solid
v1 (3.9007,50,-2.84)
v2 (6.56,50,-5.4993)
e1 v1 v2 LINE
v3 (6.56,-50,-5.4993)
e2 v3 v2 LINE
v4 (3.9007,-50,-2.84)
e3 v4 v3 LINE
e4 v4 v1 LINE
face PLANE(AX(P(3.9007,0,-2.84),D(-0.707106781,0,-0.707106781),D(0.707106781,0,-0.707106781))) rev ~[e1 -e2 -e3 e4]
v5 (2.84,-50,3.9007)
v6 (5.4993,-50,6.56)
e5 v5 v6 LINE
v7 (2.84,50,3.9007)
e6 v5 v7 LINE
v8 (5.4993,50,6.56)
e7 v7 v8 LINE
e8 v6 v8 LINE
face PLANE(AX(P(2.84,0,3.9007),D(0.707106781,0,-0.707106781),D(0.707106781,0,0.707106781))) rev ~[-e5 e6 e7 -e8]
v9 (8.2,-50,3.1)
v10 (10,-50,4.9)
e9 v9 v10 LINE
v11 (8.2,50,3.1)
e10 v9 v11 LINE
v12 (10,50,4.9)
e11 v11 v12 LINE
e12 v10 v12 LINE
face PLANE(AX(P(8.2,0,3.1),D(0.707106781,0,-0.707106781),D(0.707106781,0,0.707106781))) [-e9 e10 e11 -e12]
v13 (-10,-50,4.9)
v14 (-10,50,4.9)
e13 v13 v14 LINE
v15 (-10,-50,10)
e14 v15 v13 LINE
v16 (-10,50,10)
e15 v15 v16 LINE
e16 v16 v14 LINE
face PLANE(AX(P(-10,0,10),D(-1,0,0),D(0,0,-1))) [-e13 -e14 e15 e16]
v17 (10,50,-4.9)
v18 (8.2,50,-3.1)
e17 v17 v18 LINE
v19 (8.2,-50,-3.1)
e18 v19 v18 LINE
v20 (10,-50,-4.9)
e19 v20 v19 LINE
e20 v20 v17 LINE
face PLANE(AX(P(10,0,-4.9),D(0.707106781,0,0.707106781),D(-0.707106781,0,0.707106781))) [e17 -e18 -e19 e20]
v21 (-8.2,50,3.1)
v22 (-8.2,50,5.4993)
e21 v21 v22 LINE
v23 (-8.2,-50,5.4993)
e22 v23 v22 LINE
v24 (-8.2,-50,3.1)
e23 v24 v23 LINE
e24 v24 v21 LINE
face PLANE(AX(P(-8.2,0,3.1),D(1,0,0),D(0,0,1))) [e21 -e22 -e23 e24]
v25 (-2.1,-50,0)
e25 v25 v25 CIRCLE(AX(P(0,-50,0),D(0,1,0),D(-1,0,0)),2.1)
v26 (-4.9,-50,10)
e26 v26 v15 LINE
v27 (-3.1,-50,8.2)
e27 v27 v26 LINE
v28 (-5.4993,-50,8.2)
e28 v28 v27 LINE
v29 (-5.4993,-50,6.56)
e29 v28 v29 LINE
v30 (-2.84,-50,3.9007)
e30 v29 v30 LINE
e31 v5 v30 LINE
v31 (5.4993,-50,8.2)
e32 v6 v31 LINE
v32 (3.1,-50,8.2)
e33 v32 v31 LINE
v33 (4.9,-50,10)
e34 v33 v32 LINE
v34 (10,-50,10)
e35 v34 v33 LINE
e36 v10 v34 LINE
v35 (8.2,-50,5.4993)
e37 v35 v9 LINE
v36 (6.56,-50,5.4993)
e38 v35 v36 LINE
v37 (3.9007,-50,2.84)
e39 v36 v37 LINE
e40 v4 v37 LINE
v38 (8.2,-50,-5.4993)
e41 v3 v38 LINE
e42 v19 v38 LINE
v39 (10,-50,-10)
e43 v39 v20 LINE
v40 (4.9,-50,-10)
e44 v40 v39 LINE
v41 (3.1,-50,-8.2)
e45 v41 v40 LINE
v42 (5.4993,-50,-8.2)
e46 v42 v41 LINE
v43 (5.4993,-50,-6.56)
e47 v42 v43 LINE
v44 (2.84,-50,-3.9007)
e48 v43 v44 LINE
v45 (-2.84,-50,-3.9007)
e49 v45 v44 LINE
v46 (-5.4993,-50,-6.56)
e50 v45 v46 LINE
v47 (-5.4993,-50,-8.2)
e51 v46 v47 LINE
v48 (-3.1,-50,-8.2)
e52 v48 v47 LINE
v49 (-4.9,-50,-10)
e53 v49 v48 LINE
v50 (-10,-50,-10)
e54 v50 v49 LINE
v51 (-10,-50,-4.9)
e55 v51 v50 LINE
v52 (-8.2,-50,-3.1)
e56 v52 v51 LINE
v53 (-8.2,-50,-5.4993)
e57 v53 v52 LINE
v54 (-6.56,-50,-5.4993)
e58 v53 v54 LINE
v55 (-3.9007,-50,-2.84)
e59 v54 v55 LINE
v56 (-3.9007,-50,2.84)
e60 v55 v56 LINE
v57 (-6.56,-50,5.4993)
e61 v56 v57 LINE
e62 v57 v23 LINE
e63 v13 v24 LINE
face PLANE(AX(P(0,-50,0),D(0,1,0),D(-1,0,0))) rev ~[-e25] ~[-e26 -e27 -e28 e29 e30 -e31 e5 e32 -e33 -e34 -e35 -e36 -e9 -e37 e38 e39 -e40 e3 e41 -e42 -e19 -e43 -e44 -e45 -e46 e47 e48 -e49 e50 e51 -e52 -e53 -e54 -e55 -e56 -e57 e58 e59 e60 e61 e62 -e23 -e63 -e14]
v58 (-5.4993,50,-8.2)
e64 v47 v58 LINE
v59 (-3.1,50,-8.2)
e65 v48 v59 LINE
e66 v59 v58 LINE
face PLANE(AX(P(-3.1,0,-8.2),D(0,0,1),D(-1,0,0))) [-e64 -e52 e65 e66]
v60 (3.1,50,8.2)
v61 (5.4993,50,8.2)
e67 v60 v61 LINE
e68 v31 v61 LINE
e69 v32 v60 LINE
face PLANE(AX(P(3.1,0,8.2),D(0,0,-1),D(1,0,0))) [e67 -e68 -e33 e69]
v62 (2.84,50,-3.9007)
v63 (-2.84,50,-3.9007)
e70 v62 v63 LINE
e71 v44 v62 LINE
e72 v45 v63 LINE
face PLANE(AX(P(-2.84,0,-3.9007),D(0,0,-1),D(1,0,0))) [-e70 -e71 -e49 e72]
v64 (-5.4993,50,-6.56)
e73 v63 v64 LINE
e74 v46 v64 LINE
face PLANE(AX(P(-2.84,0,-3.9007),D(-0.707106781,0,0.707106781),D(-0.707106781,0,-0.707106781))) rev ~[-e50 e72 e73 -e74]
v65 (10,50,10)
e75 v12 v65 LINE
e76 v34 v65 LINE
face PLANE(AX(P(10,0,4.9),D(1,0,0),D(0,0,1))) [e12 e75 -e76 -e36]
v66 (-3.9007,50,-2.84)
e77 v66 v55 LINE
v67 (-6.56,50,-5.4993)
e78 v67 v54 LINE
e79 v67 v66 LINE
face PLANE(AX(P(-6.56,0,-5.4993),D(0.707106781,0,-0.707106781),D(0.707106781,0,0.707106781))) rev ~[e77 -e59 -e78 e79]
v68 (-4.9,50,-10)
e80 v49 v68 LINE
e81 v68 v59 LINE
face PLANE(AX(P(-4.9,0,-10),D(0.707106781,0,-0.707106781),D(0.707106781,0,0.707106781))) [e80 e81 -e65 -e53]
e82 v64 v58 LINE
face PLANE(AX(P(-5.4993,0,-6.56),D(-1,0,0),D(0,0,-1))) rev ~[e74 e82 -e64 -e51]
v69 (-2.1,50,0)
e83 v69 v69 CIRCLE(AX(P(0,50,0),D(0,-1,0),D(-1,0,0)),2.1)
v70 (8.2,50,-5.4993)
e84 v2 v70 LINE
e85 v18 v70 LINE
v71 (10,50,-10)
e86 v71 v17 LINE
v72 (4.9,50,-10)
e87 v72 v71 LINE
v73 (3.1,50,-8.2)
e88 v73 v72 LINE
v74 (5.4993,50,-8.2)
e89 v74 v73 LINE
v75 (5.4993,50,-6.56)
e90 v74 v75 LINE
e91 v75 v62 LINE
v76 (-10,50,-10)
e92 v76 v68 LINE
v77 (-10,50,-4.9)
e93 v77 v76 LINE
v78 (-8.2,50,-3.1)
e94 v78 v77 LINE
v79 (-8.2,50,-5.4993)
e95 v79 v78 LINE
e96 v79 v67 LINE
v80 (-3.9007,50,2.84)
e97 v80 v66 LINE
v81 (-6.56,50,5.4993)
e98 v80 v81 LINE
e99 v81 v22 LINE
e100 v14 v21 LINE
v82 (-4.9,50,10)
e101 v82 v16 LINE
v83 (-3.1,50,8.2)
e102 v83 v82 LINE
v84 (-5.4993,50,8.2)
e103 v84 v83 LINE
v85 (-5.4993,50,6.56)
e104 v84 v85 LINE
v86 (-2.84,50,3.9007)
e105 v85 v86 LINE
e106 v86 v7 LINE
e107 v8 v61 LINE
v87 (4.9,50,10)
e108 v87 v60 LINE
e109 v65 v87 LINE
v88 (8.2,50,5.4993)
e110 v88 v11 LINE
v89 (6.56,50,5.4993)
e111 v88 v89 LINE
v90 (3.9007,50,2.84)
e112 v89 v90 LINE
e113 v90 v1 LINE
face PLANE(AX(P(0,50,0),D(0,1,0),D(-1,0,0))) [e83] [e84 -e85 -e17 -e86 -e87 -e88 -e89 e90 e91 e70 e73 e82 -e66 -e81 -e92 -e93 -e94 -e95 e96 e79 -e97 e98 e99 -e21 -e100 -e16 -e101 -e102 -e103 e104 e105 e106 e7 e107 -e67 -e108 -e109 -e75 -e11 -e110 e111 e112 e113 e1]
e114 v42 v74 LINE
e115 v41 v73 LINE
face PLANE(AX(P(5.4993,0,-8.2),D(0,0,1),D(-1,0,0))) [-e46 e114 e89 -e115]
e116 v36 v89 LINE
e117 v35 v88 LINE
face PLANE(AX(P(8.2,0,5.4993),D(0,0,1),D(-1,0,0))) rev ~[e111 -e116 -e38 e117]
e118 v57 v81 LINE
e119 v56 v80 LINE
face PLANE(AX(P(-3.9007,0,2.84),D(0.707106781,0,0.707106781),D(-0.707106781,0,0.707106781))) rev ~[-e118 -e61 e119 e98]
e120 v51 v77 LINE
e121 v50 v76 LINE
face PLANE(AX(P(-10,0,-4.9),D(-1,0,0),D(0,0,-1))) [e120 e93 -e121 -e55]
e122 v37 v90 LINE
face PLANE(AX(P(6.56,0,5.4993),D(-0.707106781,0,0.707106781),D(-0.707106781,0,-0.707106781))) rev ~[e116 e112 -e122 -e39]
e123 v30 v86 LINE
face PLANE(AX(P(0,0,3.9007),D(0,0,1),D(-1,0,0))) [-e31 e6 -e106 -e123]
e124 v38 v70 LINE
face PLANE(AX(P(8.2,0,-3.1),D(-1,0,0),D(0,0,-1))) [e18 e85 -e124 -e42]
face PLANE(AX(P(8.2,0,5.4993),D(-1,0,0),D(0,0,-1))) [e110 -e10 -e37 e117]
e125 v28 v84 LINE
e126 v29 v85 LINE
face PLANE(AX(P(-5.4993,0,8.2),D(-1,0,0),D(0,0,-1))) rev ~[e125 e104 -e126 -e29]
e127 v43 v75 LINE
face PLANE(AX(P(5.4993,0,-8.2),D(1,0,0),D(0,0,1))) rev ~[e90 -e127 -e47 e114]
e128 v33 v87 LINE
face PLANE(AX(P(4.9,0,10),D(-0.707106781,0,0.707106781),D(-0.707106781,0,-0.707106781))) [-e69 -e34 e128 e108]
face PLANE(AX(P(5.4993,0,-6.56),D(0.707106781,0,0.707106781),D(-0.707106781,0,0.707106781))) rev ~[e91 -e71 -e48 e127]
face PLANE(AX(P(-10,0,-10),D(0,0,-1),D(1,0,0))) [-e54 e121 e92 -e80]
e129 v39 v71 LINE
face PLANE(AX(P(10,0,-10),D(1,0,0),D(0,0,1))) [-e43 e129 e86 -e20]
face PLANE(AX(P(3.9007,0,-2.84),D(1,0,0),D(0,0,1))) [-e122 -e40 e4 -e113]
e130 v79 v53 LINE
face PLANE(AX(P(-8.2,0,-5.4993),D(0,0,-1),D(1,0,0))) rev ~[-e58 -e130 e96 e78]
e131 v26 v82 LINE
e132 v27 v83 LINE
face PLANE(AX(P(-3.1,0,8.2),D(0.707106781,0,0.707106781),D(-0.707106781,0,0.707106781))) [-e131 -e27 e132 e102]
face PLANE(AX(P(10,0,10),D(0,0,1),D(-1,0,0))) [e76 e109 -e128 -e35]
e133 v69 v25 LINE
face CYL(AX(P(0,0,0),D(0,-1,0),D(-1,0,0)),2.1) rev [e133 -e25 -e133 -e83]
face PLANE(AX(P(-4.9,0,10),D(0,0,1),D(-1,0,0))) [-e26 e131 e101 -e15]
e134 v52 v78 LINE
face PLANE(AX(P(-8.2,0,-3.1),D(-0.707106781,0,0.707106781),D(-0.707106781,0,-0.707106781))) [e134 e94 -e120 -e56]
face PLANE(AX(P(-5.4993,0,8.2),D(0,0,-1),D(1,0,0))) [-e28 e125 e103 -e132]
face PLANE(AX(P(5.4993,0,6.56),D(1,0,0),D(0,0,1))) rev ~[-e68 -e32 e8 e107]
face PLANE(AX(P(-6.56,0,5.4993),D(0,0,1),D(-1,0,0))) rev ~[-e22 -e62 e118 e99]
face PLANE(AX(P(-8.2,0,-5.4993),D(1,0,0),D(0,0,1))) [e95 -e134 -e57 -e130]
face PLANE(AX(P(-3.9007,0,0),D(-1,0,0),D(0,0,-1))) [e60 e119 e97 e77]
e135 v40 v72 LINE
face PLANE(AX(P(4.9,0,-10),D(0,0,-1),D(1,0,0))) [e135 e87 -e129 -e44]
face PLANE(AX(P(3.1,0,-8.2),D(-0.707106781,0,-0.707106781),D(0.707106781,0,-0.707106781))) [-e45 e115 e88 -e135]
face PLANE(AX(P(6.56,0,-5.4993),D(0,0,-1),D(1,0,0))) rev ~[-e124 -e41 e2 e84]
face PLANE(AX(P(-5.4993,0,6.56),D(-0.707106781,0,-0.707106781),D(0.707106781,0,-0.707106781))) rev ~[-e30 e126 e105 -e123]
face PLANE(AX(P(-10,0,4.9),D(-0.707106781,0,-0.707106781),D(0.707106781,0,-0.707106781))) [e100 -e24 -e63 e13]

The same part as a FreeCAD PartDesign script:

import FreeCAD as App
import Part
import Sketcher

doc = App.newDocument("Part")
body = doc.addObject("PartDesign::Body", "Body")

# Sketch on XZ plane
sketch1 = body.newObject("Sketcher::SketchObject", "Sketch")
sketch1.AttachmentSupport = (doc.getObject("XZ_Plane"), [""])
sketch1.MapMode = "FlatFace"
sketch1.addGeometry([
    Part.LineSegment(App.Vector(-3.9, -2.8, 0), App.Vector(-3.9, 2.8, 0)),  # 0
    Part.LineSegment(App.Vector(-3.9, 2.8, 0), App.Vector(-6.6, 5.5, 0)),  # 1
    Part.LineSegment(App.Vector(-6.6, 5.5, 0), App.Vector(-8.2, 5.5, 0)),  # 2
    Part.LineSegment(App.Vector(-8.2, 5.5, 0), App.Vector(-8.2, 3.1, 0)),  # 3
    Part.LineSegment(App.Vector(-8.2, 3.1, 0), App.Vector(-10, 4.9, 0)),  # 4
    Part.LineSegment(App.Vector(-10, 4.9, 0), App.Vector(-10, 10, 0)),  # 5
    Part.LineSegment(App.Vector(-10, 10, 0), App.Vector(-4.9, 10, 0)),  # 6
    Part.LineSegment(App.Vector(-4.9, 10, 0), App.Vector(-3.1, 8.2, 0)),  # 7
    Part.LineSegment(App.Vector(-3.1, 8.2, 0), App.Vector(-5.5, 8.2, 0)),  # 8
    Part.LineSegment(App.Vector(-5.5, 8.2, 0), App.Vector(-5.5, 6.6, 0)),  # 9
    Part.LineSegment(App.Vector(-5.5, 6.6, 0), App.Vector(-2.8, 3.9, 0)),  # 10
    Part.LineSegment(App.Vector(-2.8, 3.9, 0), App.Vector(2.8, 3.9, 0)),  # 11
    Part.LineSegment(App.Vector(2.8, 3.9, 0), App.Vector(5.5, 6.6, 0)),  # 12
    Part.LineSegment(App.Vector(5.5, 6.6, 0), App.Vector(5.5, 8.2, 0)),  # 13
    Part.LineSegment(App.Vector(5.5, 8.2, 0), App.Vector(3.1, 8.2, 0)),  # 14
    Part.LineSegment(App.Vector(3.1, 8.2, 0), App.Vector(4.9, 10, 0)),  # 15
    Part.LineSegment(App.Vector(4.9, 10, 0), App.Vector(10, 10, 0)),  # 16
    Part.LineSegment(App.Vector(10, 10, 0), App.Vector(10, 4.9, 0)),  # 17
    Part.LineSegment(App.Vector(10, 4.9, 0), App.Vector(8.2, 3.1, 0)),  # 18
    Part.LineSegment(App.Vector(8.2, 3.1, 0), App.Vector(8.2, 5.5, 0)),  # 19
    Part.LineSegment(App.Vector(8.2, 5.5, 0), App.Vector(6.6, 5.5, 0)),  # 20
    Part.LineSegment(App.Vector(6.6, 5.5, 0), App.Vector(3.9, 2.8, 0)),  # 21
    Part.LineSegment(App.Vector(3.9, 2.8, 0), App.Vector(3.9, -2.8, 0)),  # 22
    Part.LineSegment(App.Vector(3.9, -2.8, 0), App.Vector(6.6, -5.5, 0)),  # 23
    Part.LineSegment(App.Vector(6.6, -5.5, 0), App.Vector(8.2, -5.5, 0)),  # 24
    Part.LineSegment(App.Vector(8.2, -5.5, 0), App.Vector(8.2, -3.1, 0)),  # 25
    Part.LineSegment(App.Vector(8.2, -3.1, 0), App.Vector(10, -4.9, 0)),  # 26
    Part.LineSegment(App.Vector(10, -4.9, 0), App.Vector(10, -10, 0)),  # 27
    Part.LineSegment(App.Vector(10, -10, 0), App.Vector(4.9, -10, 0)),  # 28
    Part.LineSegment(App.Vector(4.9, -10, 0), App.Vector(3.1, -8.2, 0)),  # 29
    Part.LineSegment(App.Vector(3.1, -8.2, 0), App.Vector(5.5, -8.2, 0)),  # 30
    Part.LineSegment(App.Vector(5.5, -8.2, 0), App.Vector(5.5, -6.6, 0)),  # 31
    Part.LineSegment(App.Vector(5.5, -6.6, 0), App.Vector(2.8, -3.9, 0)),  # 32
    Part.LineSegment(App.Vector(2.8, -3.9, 0), App.Vector(-2.8, -3.9, 0)),  # 33
    Part.LineSegment(App.Vector(-2.8, -3.9, 0), App.Vector(-5.5, -6.6, 0)),  # 34
    Part.LineSegment(App.Vector(-5.5, -6.6, 0), App.Vector(-5.5, -8.2, 0)),  # 35
    Part.LineSegment(App.Vector(-5.5, -8.2, 0), App.Vector(-3.1, -8.2, 0)),  # 36
    Part.LineSegment(App.Vector(-3.1, -8.2, 0), App.Vector(-4.9, -10, 0)),  # 37
    Part.LineSegment(App.Vector(-4.9, -10, 0), App.Vector(-10, -10, 0)),  # 38
    Part.LineSegment(App.Vector(-10, -10, 0), App.Vector(-10, -4.9, 0)),  # 39
    Part.LineSegment(App.Vector(-10, -4.9, 0), App.Vector(-8.2, -3.1, 0)),  # 40
    Part.LineSegment(App.Vector(-8.2, -3.1, 0), App.Vector(-8.2, -5.5, 0)),  # 41
    Part.LineSegment(App.Vector(-8.2, -5.5, 0), App.Vector(-6.6, -5.5, 0)),  # 42
    Part.LineSegment(App.Vector(-6.6, -5.5, 0), App.Vector(-3.9, -2.8, 0)),  # 43
    Part.Circle(App.Vector(0, 0, 0), App.Vector(0, 0, 1), 2.1),  # 44
], False)
sketch1.addConstraint([
    Sketcher.Constraint("Coincident", 0, 2, 1, 1),
    Sketcher.Constraint("Coincident", 1, 2, 2, 1),
    Sketcher.Constraint("Coincident", 2, 2, 3, 1),
    Sketcher.Constraint("Coincident", 3, 2, 4, 1),
    Sketcher.Constraint("Coincident", 4, 2, 5, 1),
    Sketcher.Constraint("Coincident", 5, 2, 6, 1),
    Sketcher.Constraint("Coincident", 6, 2, 7, 1),
    Sketcher.Constraint("Coincident", 7, 2, 8, 1),
    Sketcher.Constraint("Coincident", 8, 2, 9, 1),
    Sketcher.Constraint("Coincident", 9, 2, 10, 1),
    Sketcher.Constraint("Coincident", 10, 2, 11, 1),
    Sketcher.Constraint("Coincident", 11, 2, 12, 1),
    Sketcher.Constraint("Coincident", 12, 2, 13, 1),
    Sketcher.Constraint("Coincident", 13, 2, 14, 1),
    Sketcher.Constraint("Coincident", 14, 2, 15, 1),
    Sketcher.Constraint("Coincident", 15, 2, 16, 1),
    Sketcher.Constraint("Coincident", 16, 2, 17, 1),
    Sketcher.Constraint("Coincident", 17, 2, 18, 1),
    Sketcher.Constraint("Coincident", 18, 2, 19, 1),
    Sketcher.Constraint("Coincident", 19, 2, 20, 1),
    Sketcher.Constraint("Coincident", 20, 2, 21, 1),
    Sketcher.Constraint("Coincident", 21, 2, 22, 1),
    Sketcher.Constraint("Coincident", 22, 2, 23, 1),
    Sketcher.Constraint("Coincident", 23, 2, 24, 1),
    Sketcher.Constraint("Coincident", 24, 2, 25, 1),
    Sketcher.Constraint("Coincident", 25, 2, 26, 1),
    Sketcher.Constraint("Coincident", 26, 2, 27, 1),
    Sketcher.Constraint("Coincident", 27, 2, 28, 1),
    Sketcher.Constraint("Coincident", 28, 2, 29, 1),
    Sketcher.Constraint("Coincident", 29, 2, 30, 1),
    Sketcher.Constraint("Coincident", 30, 2, 31, 1),
    Sketcher.Constraint("Coincident", 31, 2, 32, 1),
    Sketcher.Constraint("Coincident", 32, 2, 33, 1),
    Sketcher.Constraint("Coincident", 33, 2, 34, 1),
    Sketcher.Constraint("Coincident", 34, 2, 35, 1),
    Sketcher.Constraint("Coincident", 35, 2, 36, 1),
    Sketcher.Constraint("Coincident", 36, 2, 37, 1),
    Sketcher.Constraint("Coincident", 37, 2, 38, 1),
    Sketcher.Constraint("Coincident", 38, 2, 39, 1),
    Sketcher.Constraint("Coincident", 39, 2, 40, 1),
    Sketcher.Constraint("Coincident", 40, 2, 41, 1),
    Sketcher.Constraint("Coincident", 41, 2, 42, 1),
    Sketcher.Constraint("Coincident", 42, 2, 43, 1),
    Sketcher.Constraint("Coincident", 43, 2, 0, 1),
    Sketcher.Constraint("Vertical", 0),
    Sketcher.Constraint("Horizontal", 2),
    Sketcher.Constraint("Vertical", 3),
    Sketcher.Constraint("Vertical", 5),
    Sketcher.Constraint("Horizontal", 6),
    Sketcher.Constraint("Horizontal", 8),
    Sketcher.Constraint("Vertical", 9),
    Sketcher.Constraint("Horizontal", 11),
    Sketcher.Constraint("Vertical", 13),
    Sketcher.Constraint("Horizontal", 14),
    Sketcher.Constraint("Horizontal", 16),
    Sketcher.Constraint("Vertical", 17),
    Sketcher.Constraint("Vertical", 19),
    Sketcher.Constraint("Horizontal", 20),
    Sketcher.Constraint("Vertical", 22),
    Sketcher.Constraint("Horizontal", 24),
    Sketcher.Constraint("Vertical", 25),
    Sketcher.Constraint("Vertical", 27),
    Sketcher.Constraint("Horizontal", 28),
    Sketcher.Constraint("Horizontal", 30),
    Sketcher.Constraint("Vertical", 31),
    Sketcher.Constraint("Horizontal", 33),
    Sketcher.Constraint("Vertical", 35),
    Sketcher.Constraint("Horizontal", 36),
    Sketcher.Constraint("Horizontal", 38),
    Sketcher.Constraint("Vertical", 39),
    Sketcher.Constraint("Vertical", 41),
    Sketcher.Constraint("Horizontal", 42),
    Sketcher.Constraint("Coincident", 44, 3, -1, 1),
    Sketcher.Constraint("Symmetric", 0, 2, 22, 2, -1, 1),
    Sketcher.Constraint("Symmetric", 1, 2, 23, 2, -1, 1),
    Sketcher.Constraint("Symmetric", 3, 2, 25, 2, -1, 1),
    Sketcher.Constraint("Symmetric", 4, 2, 26, 2, -1, 1),
    Sketcher.Constraint("Symmetric", 6, 2, 28, 2, -1, 1),
    Sketcher.Constraint("Symmetric", 7, 2, 29, 2, -1, 1),
    Sketcher.Constraint("Symmetric", 9, 2, 31, 2, -1, 1),
    Sketcher.Constraint("Symmetric", 10, 2, 32, 2, -1, 1),
    Sketcher.Constraint("Symmetric", 12, 2, 34, 2, -1, 1),
    Sketcher.Constraint("Symmetric", 14, 2, 36, 2, -1, 1),
    Sketcher.Constraint("Symmetric", 15, 2, 37, 2, -1, 1),
    Sketcher.Constraint("Symmetric", 17, 2, 39, 2, -1, 1),
    Sketcher.Constraint("Symmetric", 18, 2, 40, 2, -1, 1),
    Sketcher.Constraint("Symmetric", 20, 2, 42, 2, -1, 1),
    Sketcher.Constraint("Symmetric", 9, 2, 12, 2, -2),
    Sketcher.Constraint("Symmetric", 7, 2, 14, 2, -2),
    Sketcher.Constraint("Symmetric", 6, 2, 15, 2, -2),
    Sketcher.Constraint("Symmetric", 4, 2, 17, 2, -2),
    Sketcher.Constraint("Symmetric", 3, 2, 18, 2, -2),
    Sketcher.Constraint("Symmetric", 1, 2, 20, 2, -2),
    Sketcher.Constraint("Parallel", 1, 4),
    Sketcher.Constraint("Parallel", 4, 7),
    Sketcher.Constraint("Parallel", 7, 10),
    Sketcher.Constraint("Perpendicular", 10, 12),
    Sketcher.Constraint("Parallel", 12, 15),
    Sketcher.Constraint("Parallel", 18, 21),
    Sketcher.Constraint("Perpendicular", 32, 34),
    Sketcher.Constraint("Parallel", 40, 43),
    Sketcher.Constraint("Equal", 33, 0),
    Sketcher.Constraint("Equal", 36, 3),
    Sketcher.Constraint("Equal", 38, 5),
    Sketcher.Constraint("Equal", 42, 9),
    Sketcher.Constraint("Equal", 4, 7),
    Sketcher.Constraint("Equal", 1, 10),
    Sketcher.Constraint("Diameter", 44, 4.2),
    Sketcher.Constraint("DistanceX", 4, 2, -1, 1, 10.0),
    Sketcher.Constraint("DistanceX", 2, 2, 2, 1, 1.64),
    Sketcher.Constraint("DistanceY", -1, 1, 3, 2, 3.1),
    Sketcher.Constraint("DistanceX", 4, 2, 2, 2, 1.8),
    Sketcher.Constraint("DistanceY", -1, 1, 0, 2, 2.84),
    Sketcher.Constraint("DistanceX", 8, 2, 8, 1, 2.3993),
])
pad1 = body.newObject("PartDesign::Pad", "Pad")
pad1.Profile = sketch1
pad1.Length = 100
pad1.Midplane = True

doc.recompute()
